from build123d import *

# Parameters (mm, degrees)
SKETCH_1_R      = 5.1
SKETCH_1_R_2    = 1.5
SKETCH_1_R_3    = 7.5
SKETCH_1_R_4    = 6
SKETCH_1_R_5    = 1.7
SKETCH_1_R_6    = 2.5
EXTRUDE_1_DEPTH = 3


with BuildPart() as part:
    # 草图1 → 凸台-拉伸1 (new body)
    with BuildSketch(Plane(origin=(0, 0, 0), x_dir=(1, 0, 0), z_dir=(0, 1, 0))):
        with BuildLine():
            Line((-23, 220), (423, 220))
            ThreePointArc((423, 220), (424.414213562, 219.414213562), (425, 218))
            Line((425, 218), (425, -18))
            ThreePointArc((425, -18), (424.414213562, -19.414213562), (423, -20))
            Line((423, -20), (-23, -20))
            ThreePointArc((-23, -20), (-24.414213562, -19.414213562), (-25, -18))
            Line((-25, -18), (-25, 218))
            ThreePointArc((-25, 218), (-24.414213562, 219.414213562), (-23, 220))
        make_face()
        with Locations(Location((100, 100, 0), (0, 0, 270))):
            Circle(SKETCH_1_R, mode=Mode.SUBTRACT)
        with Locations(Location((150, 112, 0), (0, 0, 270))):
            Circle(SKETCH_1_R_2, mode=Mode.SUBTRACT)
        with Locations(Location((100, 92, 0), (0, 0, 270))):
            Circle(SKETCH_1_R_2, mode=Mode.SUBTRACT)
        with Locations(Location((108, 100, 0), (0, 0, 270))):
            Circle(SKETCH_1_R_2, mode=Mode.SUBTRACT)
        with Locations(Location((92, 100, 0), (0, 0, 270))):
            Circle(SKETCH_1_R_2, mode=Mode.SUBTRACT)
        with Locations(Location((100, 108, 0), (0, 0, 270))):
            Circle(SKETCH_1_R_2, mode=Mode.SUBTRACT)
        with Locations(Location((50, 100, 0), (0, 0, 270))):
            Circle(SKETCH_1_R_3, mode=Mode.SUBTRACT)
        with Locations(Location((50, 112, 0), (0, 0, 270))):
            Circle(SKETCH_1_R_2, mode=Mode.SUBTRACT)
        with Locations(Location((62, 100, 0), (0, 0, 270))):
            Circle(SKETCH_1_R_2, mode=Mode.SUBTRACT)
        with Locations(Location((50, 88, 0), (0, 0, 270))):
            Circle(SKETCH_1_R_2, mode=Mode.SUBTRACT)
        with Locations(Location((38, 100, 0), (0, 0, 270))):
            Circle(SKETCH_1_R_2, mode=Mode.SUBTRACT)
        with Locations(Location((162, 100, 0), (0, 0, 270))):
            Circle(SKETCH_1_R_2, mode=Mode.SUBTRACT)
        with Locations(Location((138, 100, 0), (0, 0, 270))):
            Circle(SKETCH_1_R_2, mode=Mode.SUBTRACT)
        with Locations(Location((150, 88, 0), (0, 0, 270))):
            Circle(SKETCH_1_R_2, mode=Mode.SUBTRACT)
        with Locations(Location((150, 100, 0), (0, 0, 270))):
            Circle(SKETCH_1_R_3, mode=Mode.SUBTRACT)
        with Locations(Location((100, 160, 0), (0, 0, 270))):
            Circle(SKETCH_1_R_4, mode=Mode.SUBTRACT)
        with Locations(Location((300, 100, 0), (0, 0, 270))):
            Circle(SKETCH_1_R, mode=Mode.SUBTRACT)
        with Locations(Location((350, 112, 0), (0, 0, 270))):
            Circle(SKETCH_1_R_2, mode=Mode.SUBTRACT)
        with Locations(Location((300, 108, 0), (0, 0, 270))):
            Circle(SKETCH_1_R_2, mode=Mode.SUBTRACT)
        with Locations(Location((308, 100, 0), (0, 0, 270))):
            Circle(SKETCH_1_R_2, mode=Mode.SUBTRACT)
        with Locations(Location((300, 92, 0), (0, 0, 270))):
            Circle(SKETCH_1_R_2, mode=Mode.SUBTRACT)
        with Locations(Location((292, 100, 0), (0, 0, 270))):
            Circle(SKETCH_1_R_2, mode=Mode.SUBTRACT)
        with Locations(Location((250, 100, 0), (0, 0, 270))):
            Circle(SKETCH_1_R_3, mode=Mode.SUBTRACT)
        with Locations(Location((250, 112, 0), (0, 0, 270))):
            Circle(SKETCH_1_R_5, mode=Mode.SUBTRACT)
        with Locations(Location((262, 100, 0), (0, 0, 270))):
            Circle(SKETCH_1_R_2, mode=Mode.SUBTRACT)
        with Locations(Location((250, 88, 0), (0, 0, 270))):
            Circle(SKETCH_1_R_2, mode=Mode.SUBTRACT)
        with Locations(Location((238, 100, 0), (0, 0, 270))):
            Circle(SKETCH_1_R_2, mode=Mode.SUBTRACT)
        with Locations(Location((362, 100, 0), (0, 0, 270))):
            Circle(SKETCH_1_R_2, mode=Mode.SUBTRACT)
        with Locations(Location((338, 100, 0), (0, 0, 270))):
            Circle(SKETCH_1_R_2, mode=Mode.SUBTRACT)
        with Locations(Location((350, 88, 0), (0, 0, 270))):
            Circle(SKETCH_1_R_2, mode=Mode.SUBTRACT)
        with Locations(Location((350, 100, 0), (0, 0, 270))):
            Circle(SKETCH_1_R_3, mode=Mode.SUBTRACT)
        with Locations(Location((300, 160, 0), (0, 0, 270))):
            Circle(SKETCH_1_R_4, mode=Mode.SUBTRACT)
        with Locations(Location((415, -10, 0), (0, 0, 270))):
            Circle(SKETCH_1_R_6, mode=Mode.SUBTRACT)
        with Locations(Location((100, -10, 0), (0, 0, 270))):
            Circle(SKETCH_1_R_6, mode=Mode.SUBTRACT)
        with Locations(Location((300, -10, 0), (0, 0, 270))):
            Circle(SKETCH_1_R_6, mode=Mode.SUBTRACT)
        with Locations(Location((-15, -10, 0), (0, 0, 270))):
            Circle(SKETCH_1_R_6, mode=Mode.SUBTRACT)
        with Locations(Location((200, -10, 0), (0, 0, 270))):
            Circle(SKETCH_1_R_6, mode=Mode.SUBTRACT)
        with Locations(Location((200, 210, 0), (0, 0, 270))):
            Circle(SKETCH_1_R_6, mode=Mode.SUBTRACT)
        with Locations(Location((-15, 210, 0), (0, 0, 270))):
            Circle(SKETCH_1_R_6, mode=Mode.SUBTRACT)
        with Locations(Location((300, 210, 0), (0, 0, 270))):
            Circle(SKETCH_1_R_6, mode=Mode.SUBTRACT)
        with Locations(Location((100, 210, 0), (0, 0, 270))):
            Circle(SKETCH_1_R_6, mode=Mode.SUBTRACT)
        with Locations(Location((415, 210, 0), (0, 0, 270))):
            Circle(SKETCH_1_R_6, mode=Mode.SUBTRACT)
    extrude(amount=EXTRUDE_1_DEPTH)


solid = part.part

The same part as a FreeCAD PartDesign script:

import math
import FreeCAD as App
import Part
import Sketcher
from FreeCAD import Vector
Q = App.Units.Quantity

doc = App.newDocument("Part")
body = doc.addObject("PartDesign::Body", "Body")

# Sketch on XZ plane
sketch1 = body.newObject("Sketcher::SketchObject", "Sketch")
sketch1.AttachmentSupport = (doc.getObject("XZ_Plane"), [""])
sketch1.MapMode = "FlatFace"
sketch1.addGeometry(Part.LineSegment(Vector(423, -220, 0), Vector(-23, -220, 0)), False)
sketch1.addGeometry(Part.ArcOfCircle(Part.Circle(Vector(-23, -218, 0), Vector(0, 0, 1), 2), math.radians(-180), math.radians(-90)), False)
sketch1.addGeometry(Part.LineSegment(Vector(-25, -218, 0), Vector(-25, 18, 0)), False)
sketch1.addGeometry(Part.ArcOfCircle(Part.Circle(Vector(-23, 18, 0), Vector(0, 0, 1), 2), math.radians(90), math.radians(180)), False)
sketch1.addGeometry(Part.LineSegment(Vector(-23, 20, 0), Vector(423, 20, 0)), False)
sketch1.addGeometry(Part.ArcOfCircle(Part.Circle(Vector(423, 18, 0), Vector(0, 0, 1), 2), math.radians(0), math.radians(90)), False)
sketch1.addGeometry(Part.LineSegment(Vector(425, 18, 0), Vector(425, -218, 0)), False)
sketch1.addGeometry(Part.ArcOfCircle(Part.Circle(Vector(423, -218, 0), Vector(0, 0, 1), 2), math.radians(-90), math.radians(0)), False)
sketch1.addGeometry(Part.Circle(Vector(415, 10, 0), Vector(0, 0, 1), 2.5), False)
sketch1.addGeometry(Part.Circle(Vector(300, 10, 0), Vector(0, 0, 1), 2.5), False)
sketch1.addGeometry(Part.Circle(Vector(350, -88, 0), Vector(0, 0, 1), 1.5), False)
sketch1.addGeometry(Part.Circle(Vector(300, -92, 0), Vector(0, 0, 1), 1.5), False)
sketch1.addGeometry(Part.Circle(Vector(250, -88, 0), Vector(0, 0, 1), 1.5), False)
sketch1.addGeometry(Part.Circle(Vector(200, 10, 0), Vector(0, 0, 1), 2.5), False)
sketch1.addGeometry(Part.Circle(Vector(100, 10, 0), Vector(0, 0, 1), 2.5), False)
sketch1.addGeometry(Part.Circle(Vector(-15, 10, 0), Vector(0, 0, 1), 2.5), False)
sketch1.addGeometry(Part.Circle(Vector(150, -88, 0), Vector(0, 0, 1), 1.5), False)
sketch1.addGeometry(Part.Circle(Vector(100, -92, 0), Vector(0, 0, 1), 1.5), False)
sketch1.addGeometry(Part.Circle(Vector(50, -88, 0), Vector(0, 0, 1), 1.5), False)
sketch1.addGeometry(Part.Circle(Vector(362, -100, 0), Vector(0, 0, 1), 1.5), False)
sketch1.addGeometry(Part.Circle(Vector(350, -100, 0), Vector(0, 0, 1), 7.5), False)
sketch1.addGeometry(Part.Circle(Vector(338, -100, 0), Vector(0, 0, 1), 1.5), False)
sketch1.addGeometry(Part.Circle(Vector(350, -112, 0), Vector(0, 0, 1), 1.5), False)
sketch1.addGeometry(Part.Circle(Vector(308, -100, 0), Vector(0, 0, 1), 1.5), False)
sketch1.addGeometry(Part.Circle(Vector(300, -100, 0), Vector(0, 0, 1), 5.1), False)
sketch1.addGeometry(Part.Circle(Vector(292, -100, 0), Vector(0, 0, 1), 1.5), False)
sketch1.addGeometry(Part.Circle(Vector(300, -108, 0), Vector(0, 0, 1), 1.5), False)
sketch1.addGeometry(Part.Circle(Vector(262, -100, 0), Vector(0, 0, 1), 1.5), False)
sketch1.addGeometry(Part.Circle(Vector(250, -100, 0), Vector(0, 0, 1), 7.5), False)
sketch1.addGeometry(Part.Circle(Vector(238, -100, 0), Vector(0, 0, 1), 1.5), False)
sketch1.addGeometry(Part.Circle(Vector(250, -112, 0), Vector(0, 0, 1), 1.7), False)
sketch1.addGeometry(Part.Circle(Vector(415, -210, 0), Vector(0, 0, 1), 2.5), False)
sketch1.addGeometry(Part.Circle(Vector(300, -160, 0), Vector(0, 0, 1), 6), False)
sketch1.addGeometry(Part.Circle(Vector(300, -210, 0), Vector(0, 0, 1), 2.5), False)
sketch1.addGeometry(Part.Circle(Vector(162, -100, 0), Vector(0, 0, 1), 1.5), False)
sketch1.addGeometry(Part.Circle(Vector(150, -100, 0), Vector(0, 0, 1), 7.5), False)
sketch1.addGeometry(Part.Circle(Vector(150, -112, 0), Vector(0, 0, 1), 1.5), False)
sketch1.addGeometry(Part.Circle(Vector(138, -100, 0), Vector(0, 0, 1), 1.5), False)
sketch1.addGeometry(Part.Circle(Vector(108, -100, 0), Vector(0, 0, 1), 1.5), False)
sketch1.addGeometry(Part.Circle(Vector(100, -100, 0), Vector(0, 0, 1), 5.1), False)
sketch1.addGeometry(Part.Circle(Vector(92, -100, 0), Vector(0, 0, 1), 1.5), False)
sketch1.addGeometry(Part.Circle(Vector(100, -108, 0), Vector(0, 0, 1), 1.5), False)
sketch1.addGeometry(Part.Circle(Vector(62, -100, 0), Vector(0, 0, 1), 1.5), False)
sketch1.addGeometry(Part.Circle(Vector(50, -100, 0), Vector(0, 0, 1), 7.5), False)
sketch1.addGeometry(Part.Circle(Vector(38, -100, 0), Vector(0, 0, 1), 1.5), False)
sketch1.addGeometry(Part.Circle(Vector(50, -112, 0), Vector(0, 0, 1), 1.5), False)
sketch1.addGeometry(Part.Circle(Vector(100, -160, 0), Vector(0, 0, 1), 6), False)
sketch1.addGeometry(Part.Circle(Vector(200, -210, 0), Vector(0, 0, 1), 2.5), False)
sketch1.addGeometry(Part.Circle(Vector(100, -210, 0), Vector(0, 0, 1), 2.5), False)
sketch1.addGeometry(Part.Circle(Vector(-15, -210, 0), Vector(0, 0, 1), 2.5), False)
sketch1.addConstraint(Sketcher.Constraint("Tangent", 0, 2, 1, 2))
sketch1.addConstraint(Sketcher.Constraint("Tangent", 1, 1, 2, 1))
sketch1.addConstraint(Sketcher.Constraint("Tangent", 2, 2, 3, 2))
sketch1.addConstraint(Sketcher.Constraint("Tangent", 3, 1, 4, 1))
sketch1.addConstraint(Sketcher.Constraint("Tangent", 4, 2, 5, 2))
sketch1.addConstraint(Sketcher.Constraint("Tangent", 5, 1, 6, 1))
sketch1.addConstraint(Sketcher.Constraint("Tangent", 6, 2, 7, 2))
sketch1.addConstraint(Sketcher.Constraint("Tangent", 7, 1, 0, 1))
sketch1.addConstraint(Sketcher.Constraint("Horizontal", 0))
sketch1.addConstraint(Sketcher.Constraint("Vertical", 2))
sketch1.addConstraint(Sketcher.Constraint("Horizontal", 4))
sketch1.addConstraint(Sketcher.Constraint("Vertical", 6))
sketch1.addConstraint(Sketcher.Constraint("Equal", 1, 3))
sketch1.addConstraint(Sketcher.Constraint("Equal", 3, 5))
sketch1.addConstraint(Sketcher.Constraint("Equal", 5, 7))
sketch1.addConstraint(Sketcher.Constraint("Equal", 8, 9))
sketch1.addConstraint(Sketcher.Constraint("Equal", 10, 11))
sketch1.addConstraint(Sketcher.Constraint("Equal", 11, 12))
sketch1.addConstraint(Sketcher.Constraint("Equal", 9, 13))
sketch1.addConstraint(Sketcher.Constraint("Equal", 13, 14))
sketch1.addConstraint(Sketcher.Constraint("Equal", 14, 15))
sketch1.addConstraint(Sketcher.Constraint("Equal", 12, 16))
sketch1.addConstraint(Sketcher.Constraint("Equal", 16, 17))
sketch1.addConstraint(Sketcher.Constraint("Equal", 17, 18))
sketch1.addConstraint(Sketcher.Constraint("Equal", 18, 19))
sketch1.addConstraint(Sketcher.Constraint("Equal", 19, 21))
sketch1.addConstraint(Sketcher.Constraint("Equal", 21, 22))
sketch1.addConstraint(Sketcher.Constraint("Equal", 22, 23))
sketch1.addConstraint(Sketcher.Constraint("Equal", 23, 25))
sketch1.addConstraint(Sketcher.Constraint("Equal", 25, 26))
sketch1.addConstraint(Sketcher.Constraint("Equal", 26, 27))
sketch1.addConstraint(Sketcher.Constraint("Equal", 20, 28))
sketch1.addConstraint(Sketcher.Constraint("Equal", 27, 29))
sketch1.addConstraint(Sketcher.Constraint("Equal", 15, 31))
sketch1.addConstraint(Sketcher.Constraint("Equal", 31, 33))
sketch1.addConstraint(Sketcher.Constraint("Equal", 29, 34))
sketch1.addConstraint(Sketcher.Constraint("Equal", 28, 35))
sketch1.addConstraint(Sketcher.Constraint("Equal", 34, 36))
sketch1.addConstraint(Sketcher.Constraint("Equal", 36, 37))
sketch1.addConstraint(Sketcher.Constraint("Equal", 37, 38))
sketch1.addConstraint(Sketcher.Constraint("Equal", 24, 39))
sketch1.addConstraint(Sketcher.Constraint("Equal", 38, 40))
sketch1.addConstraint(Sketcher.Constraint("Equal", 40, 41))
sketch1.addConstraint(Sketcher.Constraint("Equal", 41, 42))
sketch1.addConstraint(Sketcher.Constraint("Equal", 35, 43))
sketch1.addConstraint(Sketcher.Constraint("Equal", 42, 44))
sketch1.addConstraint(Sketcher.Constraint("Equal", 44, 45))
sketch1.addConstraint(Sketcher.Constraint("Equal", 32, 46))
sketch1.addConstraint(Sketcher.Constraint("Equal", 33, 47))
sketch1.addConstraint(Sketcher.Constraint("Equal", 47, 48))
sketch1.addConstraint(Sketcher.Constraint("Equal", 48, 49))
sketch1.addConstraint(Sketcher.Constraint("Horizontal", 8, 3, 9, 3))
sketch1.addConstraint(Sketcher.Constraint("Horizontal", 10, 3, 12, 3))
sketch1.addConstraint(Sketcher.Constraint("Horizontal", 9, 3, 13, 3))
sketch1.addConstraint(Sketcher.Constraint("Horizontal", 13, 3, 14, 3))
sketch1.addConstraint(Sketcher.Constraint("Horizontal", 14, 3, 15, 3))
sketch1.addConstraint(Sketcher.Constraint("Horizontal", 12, 3, 16, 3))
sketch1.addConstraint(Sketcher.Constraint("Horizontal", 11, 3, 17, 3))
sketch1.addConstraint(Sketcher.Constraint("Horizontal", 16, 3, 18, 3))
sketch1.addConstraint(Sketcher.Constraint("Horizontal", 19, 3, 20, 3))
sketch1.addConstraint(Sketcher.Constraint("Horizontal", 20, 3, 21, 3))
sketch1.addConstraint(Sketcher.Constraint("Horizontal", 21, 3, 23, 3))
sketch1.addConstraint(Sketcher.Constraint("Horizontal", 23, 3, 24, 3))
sketch1.addConstraint(Sketcher.Constraint("Horizontal", 24, 3, 25, 3))
sketch1.addConstraint(Sketcher.Constraint("Horizontal", 25, 3, 27, 3))
sketch1.addConstraint(Sketcher.Constraint("Horizontal", 27, 3, 28, 3))
sketch1.addConstraint(Sketcher.Constraint("Horizontal", 28, 3, 29, 3))
sketch1.addConstraint(Sketcher.Constraint("Horizontal", 22, 3, 30, 3))
sketch1.addConstraint(Sketcher.Constraint("Horizontal", 31, 3, 33, 3))
sketch1.addConstraint(Sketcher.Constraint("Horizontal", 29, 3, 34, 3))
sketch1.addConstraint(Sketcher.Constraint("Horizontal", 34, 3, 35, 3))
sketch1.addConstraint(Sketcher.Constraint("Horizontal", 30, 3, 36, 3))
sketch1.addConstraint(Sketcher.Constraint("Horizontal", 35, 3, 37, 3))
sketch1.addConstraint(Sketcher.Constraint("Horizontal", 37, 3, 38, 3))
sketch1.addConstraint(Sketcher.Constraint("Horizontal", 38, 3, 39, 3))
sketch1.addConstraint(Sketcher.Constraint("Horizontal", 39, 3, 40, 3))
sketch1.addConstraint(Sketcher.Constraint("Horizontal", 26, 3, 41, 3))
sketch1.addConstraint(Sketcher.Constraint("Horizontal", 40, 3, 42, 3))
sketch1.addConstraint(Sketcher.Constraint("Horizontal", 42, 3, 43, 3))
sketch1.addConstraint(Sketcher.Constraint("Horizontal", 43, 3, 44, 3))
sketch1.addConstraint(Sketcher.Constraint("Horizontal", 36, 3, 45, 3))
sketch1.addConstraint(Sketcher.Constraint("Horizontal", 32, 3, 46, 3))
sketch1.addConstraint(Sketcher.Constraint("Horizontal", 33, 3, 47, 3))
sketch1.addConstraint(Sketcher.Constraint("Horizontal", 47, 3, 48, 3))
sketch1.addConstraint(Sketcher.Constraint("Horizontal", 48, 3, 49, 3))
sketch1.addConstraint(Sketcher.Constraint("Vertical", 9, 3, 11, 3))
sketch1.addConstraint(Sketcher.Constraint("Vertical", 14, 3, 17, 3))
sketch1.addConstraint(Sketcher.Constraint("Vertical", 10, 3, 20, 3))
sketch1.addConstraint(Sketcher.Constraint("Vertical", 20, 3, 22, 3))
sketch1.addConstraint(Sketcher.Constraint("Vertical", 11, 3, 24, 3))
sketch1.addConstraint(Sketcher.Constraint("Vertical", 24, 3, 26, 3))
sketch1.addConstraint(Sketcher.Constraint("Vertical", 12, 3, 28, 3))
sketch1.addConstraint(Sketcher.Constraint("Vertical", 28, 3, 30, 3))
sketch1.addConstraint(Sketcher.Constraint("Vertical", 8, 3, 31, 3))
sketch1.addConstraint(Sketcher.Constraint("Vertical", 26, 3, 32, 3))
sketch1.addConstraint(Sketcher.Constraint("Vertical", 32, 3, 33, 3))
sketch1.addConstraint(Sketcher.Constraint("Vertical", 16, 3, 35, 3))
sketch1.addConstraint(Sketcher.Constraint("Vertical", 35, 3, 36, 3))
sketch1.addConstraint(Sketcher.Constraint("Vertical", 17, 3, 39, 3))
sketch1.addConstraint(Sketcher.Constraint("Vertical", 39, 3, 41, 3))
sketch1.addConstraint(Sketcher.Constraint("Vertical", 18, 3, 43, 3))
sketch1.addConstraint(Sketcher.Constraint("Vertical", 43, 3, 45, 3))
sketch1.addConstraint(Sketcher.Constraint("Vertical", 41, 3, 46, 3))
sketch1.addConstraint(Sketcher.Constraint("Vertical", 13, 3, 47, 3))
sketch1.addConstraint(Sketcher.Constraint("Vertical", 46, 3, 48, 3))
sketch1.addConstraint(Sketcher.Constraint("Vertical", 15, 3, 49, 3))
sketch1.addConstraint(Sketcher.Constraint("Diameter", 8, Q("5 mm")))
sketch1.addConstraint(Sketcher.Constraint("Diameter", 10, Q("3 mm")))
sketch1.addConstraint(Sketcher.Constraint("Diameter", 20, Q("15 mm")))
sketch1.addConstraint(Sketcher.Constraint("Diameter", 32, Q("12 mm")))
sketch1.addConstraint(Sketcher.Constraint("Radius", 1, Q("2 mm")))
sketch1.addConstraint(Sketcher.Constraint("Diameter", 24, Q("10.2 mm")))
sketch1.addConstraint(Sketcher.Constraint("Diameter", 30, Q("3.4 mm")))
sketch1.addConstraint(Sketcher.Constraint("DistanceX", 0, 2, 0, 1, Q("446 mm")))
sketch1.addConstraint(Sketcher.Constraint("DistanceY", 2, 1, 2, 2, Q("236 mm")))
sketch1.addConstraint(Sketcher.Constraint("DistanceX", 1, 3, -1, 1, Q("23 mm")))
sketch1.addConstraint(Sketcher.Constraint("DistanceY", 1, 3, -1, 1, Q("218 mm")))
sketch1.addConstraint(Sketcher.Constraint("DistanceX", -1, 1, 8, 3, Q("415 mm")))
sketch1.addConstraint(Sketcher.Constraint("DistanceY", -1, 1, 8, 3, Q("10 mm")))
sketch1.addConstraint(Sketcher.Constraint("DistanceX", -1, 1, 9, 3, Q("300 mm")))
sketch1.addConstraint(Sketcher.Constraint("DistanceX", -1, 1, 10, 3, Q("350 mm")))
sketch1.addConstraint(Sketcher.Constraint("DistanceY", 10, 3, -1, 1, Q("88 mm")))
sketch1.addConstraint(Sketcher.Constraint("DistanceY", 11, 3, -1, 1, Q("92 mm")))
sketch1.addConstraint(Sketcher.Constraint("DistanceX", -1, 1, 12, 3, Q("250 mm")))
sketch1.addConstraint(Sketcher.Constraint("DistanceX", -1, 1, 13, 3, Q("200 mm")))
sketch1.addConstraint(Sketcher.Constraint("DistanceX", -1, 1, 14, 3, Q("100 mm")))
sketch1.addConstraint(Sketcher.Constraint("DistanceX", 15, 3, -1, 1, Q("15 mm")))
sketch1.addConstraint(Sketcher.Constraint("DistanceX", -1, 1, 16, 3, Q("150 mm")))
sketch1.addConstraint(Sketcher.Constraint("DistanceX", -1, 1, 18, 3, Q("50 mm")))
sketch1.addConstraint(Sketcher.Constraint("DistanceX", -1, 1, 19, 3, Q("362 mm")))
sketch1.addConstraint(Sketcher.Constraint("DistanceY", 19, 3, -1, 1, Q("100 mm")))
sketch1.addConstraint(Sketcher.Constraint("DistanceX", -1, 1, 21, 3, Q("338 mm")))
sketch1.addConstraint(Sketcher.Constraint("DistanceY", 22, 3, -1, 1, Q("112 mm")))
sketch1.addConstraint(Sketcher.Constraint("DistanceX", -1, 1, 23, 3, Q("308 mm")))
sketch1.addConstraint(Sketcher.Constraint("DistanceX", -1, 1, 25, 3, Q("292 mm")))
sketch1.addConstraint(Sketcher.Constraint("DistanceY", 26, 3, -1, 1, Q("108 mm")))
sketch1.addConstraint(Sketcher.Constraint("DistanceX", -1, 1, 27, 3, Q("262 mm")))
sketch1.addConstraint(Sketcher.Constraint("DistanceX", -1, 1, 29, 3, Q("238 mm")))
sketch1.addConstraint(Sketcher.Constraint("DistanceY", 31, 3, -1, 1, Q("210 mm")))
sketch1.addConstraint(Sketcher.Constraint("DistanceY", 32, 3, -1, 1, Q("160 mm")))
sketch1.addConstraint(Sketcher.Constraint("DistanceX", -1, 1, 34, 3, Q("162 mm")))
sketch1.addConstraint(Sketcher.Constraint("DistanceX", -1, 1, 37, 3, Q("138 mm")))
sketch1.addConstraint(Sketcher.Constraint("DistanceX", -1, 1, 38, 3, Q("108 mm")))
sketch1.addConstraint(Sketcher.Constraint("DistanceX", -1, 1, 40, 3, Q("92 mm")))
sketch1.addConstraint(Sketcher.Constraint("DistanceX", -1, 1, 42, 3, Q("62 mm")))
sketch1.addConstraint(Sketcher.Constraint("DistanceX", -1, 1, 44, 3, Q("38 mm")))
pad1 = body.newObject("PartDesign::Pad", "Pad")
pad1.Profile = sketch1
pad1.Length = 3
pad1.Reversed = True

doc.recompute()
